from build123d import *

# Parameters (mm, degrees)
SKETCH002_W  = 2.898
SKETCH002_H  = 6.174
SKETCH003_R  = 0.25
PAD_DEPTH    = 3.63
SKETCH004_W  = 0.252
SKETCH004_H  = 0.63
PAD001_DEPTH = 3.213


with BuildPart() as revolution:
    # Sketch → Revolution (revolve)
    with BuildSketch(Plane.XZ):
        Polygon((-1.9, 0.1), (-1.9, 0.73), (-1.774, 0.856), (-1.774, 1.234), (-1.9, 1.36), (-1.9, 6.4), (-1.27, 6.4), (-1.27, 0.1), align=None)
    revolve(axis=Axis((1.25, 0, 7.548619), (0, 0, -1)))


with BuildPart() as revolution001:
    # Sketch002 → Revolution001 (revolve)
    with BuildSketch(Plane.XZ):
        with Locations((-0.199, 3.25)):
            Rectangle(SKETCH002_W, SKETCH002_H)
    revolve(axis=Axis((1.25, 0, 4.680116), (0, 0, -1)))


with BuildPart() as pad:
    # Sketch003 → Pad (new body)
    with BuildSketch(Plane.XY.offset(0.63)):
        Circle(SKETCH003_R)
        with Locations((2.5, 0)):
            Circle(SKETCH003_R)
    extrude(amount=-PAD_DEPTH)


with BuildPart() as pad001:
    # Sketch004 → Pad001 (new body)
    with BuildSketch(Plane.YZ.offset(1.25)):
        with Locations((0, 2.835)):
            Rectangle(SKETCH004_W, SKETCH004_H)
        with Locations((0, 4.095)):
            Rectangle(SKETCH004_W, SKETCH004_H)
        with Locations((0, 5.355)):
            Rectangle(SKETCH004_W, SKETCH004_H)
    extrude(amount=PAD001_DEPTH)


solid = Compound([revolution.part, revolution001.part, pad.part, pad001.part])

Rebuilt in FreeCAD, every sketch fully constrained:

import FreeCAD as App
import Part
import Sketcher


def add_polygon(sketch, points):
    """Adds a closed chain of lines whose ends are joined by coincident constraints."""
    first, n = sketch.GeometryCount, len(points)
    for a, b in zip(points, points[1:] + points[:1]):
        sketch.addGeometry(Part.LineSegment(App.Vector(*a, 0), App.Vector(*b, 0)), False)
    for i in range(n):
        sketch.addConstraint(Sketcher.Constraint("Coincident", first + i, 2, first + (i + 1) % n, 1))

doc = App.newDocument("Part")
params = doc.addObject("Spreadsheet::Sheet", "Params")
for row, (alias, value) in enumerate([
    ("sketch1_height", "6.3 mm"),
    ("sketch1_width", "0.63 mm"),
    ("sketch1_height2", "5.04 mm"),
    ("revolution_angle", "360 deg"),
    ("revolution2_angle", "360 deg"),
    ("sketch3_diameter", "0.5 mm"),
    ("pad1_length", "3.63 mm"),
    ("sketch4_height", "0.63 mm"),
    ("pad2_length", "3.213 mm"),
], start=1):
    params.set(f"A{row}", alias)
    params.set(f"B{row}", "=" + value)
    params.setAlias(f"B{row}", alias)

body = doc.addObject("PartDesign::Body", "Body")

# Sketch on XZ plane
sketch1 = body.newObject("Sketcher::SketchObject", "Sketch")
sketch1.AttachmentSupport = (doc.getObject("XZ_Plane"), [""])
sketch1.MapMode = "FlatFace"
add_polygon(sketch1, [(-1.9, 0.73), (-1.9, 0.1), (-1.27, 0.1), (-1.27, 6.4), (-1.9, 6.4), (-1.9, 1.36), (-1.774, 1.234), (-1.774, 0.856)])  # lines 0-7
sketch1.addGeometry(Part.LineSegment(App.Vector(1.25, 6.4, 0), App.Vector(1.25, 0.1, 0)), True)  # axis
sketch1.addConstraint(Sketcher.Constraint("Vertical", 0))
sketch1.addConstraint(Sketcher.Constraint("Horizontal", 1))
sketch1.addConstraint(Sketcher.Constraint("Vertical", 2))
sketch1.addConstraint(Sketcher.Constraint("Horizontal", 3))
sketch1.addConstraint(Sketcher.Constraint("Vertical", 4))
sketch1.addConstraint(Sketcher.Constraint("Vertical", 6))
sketch1.addConstraint(Sketcher.Constraint("Vertical", 8))
sketch1.addConstraint(Sketcher.Constraint("Perpendicular", 5, 7))
sketch1.addConstraint(Sketcher.Constraint("Horizontal", 3, 2, 8, 1))
sketch1.addConstraint(Sketcher.Constraint("Horizontal", 1, 2, 8, 2))
sketch1.addConstraint(Sketcher.Constraint("Vertical", 0, 2, 3, 2))
sketch1.addConstraint(Sketcher.Constraint("Equal", 3, 0))
sketch1.addConstraint(Sketcher.Constraint("Equal", 5, 7))
sketch1.addConstraint(Sketcher.Constraint("DistanceY", 2, 1, 2, 2, 6.3))
sketch1.addConstraint(Sketcher.Constraint("DistanceX", 1, 1, 1, 2, 0.63))
sketch1.addConstraint(Sketcher.Constraint("DistanceY", 4, 2, 4, 1, 5.04))
sketch1.addConstraint(Sketcher.Constraint("DistanceX", 0, 2, -1, 1, 1.9))
sketch1.addConstraint(Sketcher.Constraint("DistanceY", -1, 1, 0, 2, 0.1))
sketch1.addConstraint(Sketcher.Constraint("DistanceY", 6, 2, 6, 1, 0.378))
sketch1.addConstraint(Sketcher.Constraint("DistanceX", -1, 1, 8, 1, 1.25))
sketch1.setExpression("Constraints[21]", "Params.sketch1_height")
sketch1.setExpression("Constraints[22]", "Params.sketch1_width")
sketch1.setExpression("Constraints[23]", "Params.sketch1_height2")
revolution = body.newObject("PartDesign::Revolution", "Revolution")
revolution.Profile = sketch1
revolution.ReferenceAxis = (sketch1, ["Axis0"])
revolution.setExpression("Angle", "Params.revolution_angle")
body2 = doc.addObject("PartDesign::Body", "Body001")

# Sketch on XZ plane
sketch2 = body2.newObject("Sketcher::SketchObject", "Sketch001")
sketch2.AttachmentSupport = (doc.getObject("XZ_Plane001"), [""])
sketch2.MapMode = "FlatFace"
add_polygon(sketch2, [(-1.648, 6.337), (-1.648, 0.163), (1.25, 0.163), (1.25, 6.337)])  # lines 0-3
sketch2.addGeometry(Part.LineSegment(App.Vector(1.25, 6.337, 0), App.Vector(1.25, 0.163, 0)), True)  # axis
sketch2.addConstraint(Sketcher.Constraint("Vertical", 0))
sketch2.addConstraint(Sketcher.Constraint("Horizontal", 1))
sketch2.addConstraint(Sketcher.Constraint("Vertical", 2))
sketch2.addConstraint(Sketcher.Constraint("Horizontal", 3))
sketch2.addConstraint(Sketcher.Constraint("Vertical", 4))
sketch2.addConstraint(Sketcher.Constraint("Coincident", 4, 1, 2, 2))
sketch2.addConstraint(Sketcher.Constraint("Horizontal", 0, 2, 4, 2))
sketch2.addConstraint(Sketcher.Constraint("DistanceX", 1, 1, 1, 2, 2.898))
sketch2.addConstraint(Sketcher.Constraint("DistanceY", 0, 2, 0, 1, 6.174))
sketch2.addConstraint(Sketcher.Constraint("DistanceX", -1, 1, 1, 2, 1.25))
sketch2.addConstraint(Sketcher.Constraint("DistanceY", -1, 1, 0, 2, 0.163))
revolution2 = body2.newObject("PartDesign::Revolution", "Revolution001")
revolution2.Profile = sketch2
revolution2.ReferenceAxis = (sketch2, ["Axis0"])
revolution2.setExpression("Angle", "Params.revolution2_angle")
body3 = doc.addObject("PartDesign::Body", "Body002")
body3.AllowCompound = True

# Sketch on XY plane
sketch3 = body3.newObject("Sketcher::SketchObject", "Sketch002")
sketch3.AttachmentSupport = (doc.getObject("XY_Plane002"), [""])
sketch3.MapMode = "FlatFace"
sketch3.AttachmentOffset = App.Placement(App.Vector(0, 0, 0.63), App.Rotation())
sketch3.addGeometry(Part.Circle(App.Vector(0, 0, 0), App.Vector(0, 0, 1), 0.25), False)
sketch3.addGeometry(Part.Circle(App.Vector(2.5, 0, 0), App.Vector(0, 0, 1), 0.25), False)
sketch3.addConstraint(Sketcher.Constraint("Coincident", 0, 3, -1, 1))
sketch3.addConstraint(Sketcher.Constraint("Equal", 0, 1))
sketch3.addConstraint(Sketcher.Constraint("PointOnObject", 1, 3, -1))
sketch3.addConstraint(Sketcher.Constraint("Diameter", 0, 0.5))
sketch3.addConstraint(Sketcher.Constraint("DistanceX", -1, 1, 1, 3, 2.5))
sketch3.setExpression("Constraints[3]", "Params.sketch3_diameter")
pad1 = body3.newObject("PartDesign::Pad", "Pad")
pad1.Profile = sketch3
pad1.setExpression("Length", "Params.pad1_length")
pad1.Reversed = True
body4 = doc.addObject("PartDesign::Body", "Body003")
body4.AllowCompound = True

# Sketch on YZ plane
sketch4 = body4.newObject("Sketcher::SketchObject", "Sketch003")
sketch4.AttachmentSupport = (doc.getObject("YZ_Plane003"), [""])
sketch4.MapMode = "FlatFace"
sketch4.AttachmentOffset = App.Placement(App.Vector(0, 0, 1.25), App.Rotation())
add_polygon(sketch4, [(-0.126, 3.15), (-0.126, 2.52), (0.126, 2.52), (0.126, 3.15)])  # lines 0-3
add_polygon(sketch4, [(-0.126, 4.41), (-0.126, 3.78), (0.126, 3.78), (0.126, 4.41)])  # lines 4-7
add_polygon(sketch4, [(-0.126, 5.67), (-0.126, 5.04), (0.126, 5.04), (0.126, 5.67)])  # lines 8-11
sketch4.addConstraint(Sketcher.Constraint("Vertical", 0))
sketch4.addConstraint(Sketcher.Constraint("Horizontal", 1))
sketch4.addConstraint(Sketcher.Constraint("Vertical", 2))
sketch4.addConstraint(Sketcher.Constraint("Horizontal", 3))
sketch4.addConstraint(Sketcher.Constraint("Vertical", 4))
sketch4.addConstraint(Sketcher.Constraint("Horizontal", 5))
sketch4.addConstraint(Sketcher.Constraint("Vertical", 6))
sketch4.addConstraint(Sketcher.Constraint("Horizontal", 7))
sketch4.addConstraint(Sketcher.Constraint("Vertical", 8))
sketch4.addConstraint(Sketcher.Constraint("Horizontal", 9))
sketch4.addConstraint(Sketcher.Constraint("Vertical", 10))
sketch4.addConstraint(Sketcher.Constraint("Horizontal", 11))
sketch4.addConstraint(Sketcher.Constraint("Vertical", 3, 2, 4, 2))
sketch4.addConstraint(Sketcher.Constraint("Vertical", 2, 2, 5, 2))
sketch4.addConstraint(Sketcher.Constraint("Vertical", 7, 2, 8, 2))
sketch4.addConstraint(Sketcher.Constraint("Vertical", 6, 2, 9, 2))
sketch4.addConstraint(Sketcher.Constraint("Equal", 2, 4))
sketch4.addConstraint(Sketcher.Constraint("Equal", 6, 8))
sketch4.addConstraint(Sketcher.Constraint("DistanceY", 0, 2, 0, 1, 0.63))
sketch4.addConstraint(Sketcher.Constraint("DistanceX", 1, 1, 1, 2, 0.252))
sketch4.addConstraint(Sketcher.Constraint("DistanceY", -1, 1, 0, 2, 2.52))
sketch4.addConstraint(Sketcher.Constraint("DistanceY", -1, 1, 4, 2, 3.78))
sketch4.addConstraint(Sketcher.Constraint("DistanceY", -1, 1, 8, 2, 5.04))
sketch4.addConstraint(Sketcher.Constraint("DistanceX", 0, 2, -1, 1, 0.126))
sketch4.setExpression("Constraints[30]", "Params.sketch4_height")
pad2 = body4.newObject("PartDesign::Pad", "Pad001")
pad2.Profile = sketch4
pad2.setExpression("Length", "Params.pad2_length")

doc.recompute()
